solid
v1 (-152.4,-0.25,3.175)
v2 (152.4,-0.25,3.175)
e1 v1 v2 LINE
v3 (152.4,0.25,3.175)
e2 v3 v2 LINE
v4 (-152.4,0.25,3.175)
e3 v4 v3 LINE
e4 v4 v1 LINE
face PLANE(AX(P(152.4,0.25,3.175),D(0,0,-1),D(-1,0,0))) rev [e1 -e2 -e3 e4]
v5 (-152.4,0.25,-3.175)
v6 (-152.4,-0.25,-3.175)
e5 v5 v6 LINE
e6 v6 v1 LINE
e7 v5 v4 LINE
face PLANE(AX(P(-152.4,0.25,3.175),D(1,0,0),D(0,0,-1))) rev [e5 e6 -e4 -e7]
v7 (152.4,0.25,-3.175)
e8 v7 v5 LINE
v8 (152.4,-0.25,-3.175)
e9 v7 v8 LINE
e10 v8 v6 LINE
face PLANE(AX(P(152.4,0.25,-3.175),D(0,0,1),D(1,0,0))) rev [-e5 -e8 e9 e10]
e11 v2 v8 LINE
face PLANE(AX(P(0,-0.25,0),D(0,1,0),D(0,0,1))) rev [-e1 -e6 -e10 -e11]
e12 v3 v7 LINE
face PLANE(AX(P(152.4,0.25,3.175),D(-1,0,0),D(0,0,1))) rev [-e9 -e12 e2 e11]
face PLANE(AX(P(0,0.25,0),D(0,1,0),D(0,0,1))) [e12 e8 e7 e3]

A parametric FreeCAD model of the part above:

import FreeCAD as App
import Part
import Sketcher

V = App.Vector
Q = App.Units.Quantity


def add_polygon(sketch, points):
    """Adds a closed chain of lines whose ends are joined by coincident constraints."""
    first, n = sketch.GeometryCount, len(points)
    for a, b in zip(points, points[1:] + points[:1]):
        sketch.addGeometry(Part.LineSegment(App.Vector(*a, 0), App.Vector(*b, 0)), False)
    for i in range(n):
        sketch.addConstraint(Sketcher.Constraint("Coincident", first + i, 2, first + (i + 1) % n, 1))

doc = App.newDocument("Part")
body = doc.addObject("PartDesign::Body", "Body")

# Sketch on XZ plane
sketch1 = doc.addObject("Sketcher::SketchObject", "Sketch")
body.addObject(sketch1)
sketch1.AttachmentSupport = (doc.XZ_Plane, [""])
sketch1.MapMode = "FlatFace"
add_polygon(sketch1, [(-152, -3), (-152, 3), (152, 3), (152, -3)])  # lines 0-3
sketch1.addConstraint([
    Sketcher.Constraint("Vertical", 0),
    Sketcher.Constraint("Horizontal", 1),
    Sketcher.Constraint("Vertical", 2),
    Sketcher.Constraint("Horizontal", 3),
    Sketcher.Constraint("Symmetric", 0, 2, 2, 2, -1, 1),
    Sketcher.Constraint("DistanceX", 1, 1, 1, 2, Q("12 in")),
    Sketcher.Constraint("DistanceY", 0, 1, 0, 2, Q("0.25 in")),
])
pad1 = doc.addObject("PartDesign::Pad", "Pad")
body.addObject(pad1)
pad1.Profile = sketch1
pad1.Length = 0.5
pad1.Midplane = True

doc.recompute()
